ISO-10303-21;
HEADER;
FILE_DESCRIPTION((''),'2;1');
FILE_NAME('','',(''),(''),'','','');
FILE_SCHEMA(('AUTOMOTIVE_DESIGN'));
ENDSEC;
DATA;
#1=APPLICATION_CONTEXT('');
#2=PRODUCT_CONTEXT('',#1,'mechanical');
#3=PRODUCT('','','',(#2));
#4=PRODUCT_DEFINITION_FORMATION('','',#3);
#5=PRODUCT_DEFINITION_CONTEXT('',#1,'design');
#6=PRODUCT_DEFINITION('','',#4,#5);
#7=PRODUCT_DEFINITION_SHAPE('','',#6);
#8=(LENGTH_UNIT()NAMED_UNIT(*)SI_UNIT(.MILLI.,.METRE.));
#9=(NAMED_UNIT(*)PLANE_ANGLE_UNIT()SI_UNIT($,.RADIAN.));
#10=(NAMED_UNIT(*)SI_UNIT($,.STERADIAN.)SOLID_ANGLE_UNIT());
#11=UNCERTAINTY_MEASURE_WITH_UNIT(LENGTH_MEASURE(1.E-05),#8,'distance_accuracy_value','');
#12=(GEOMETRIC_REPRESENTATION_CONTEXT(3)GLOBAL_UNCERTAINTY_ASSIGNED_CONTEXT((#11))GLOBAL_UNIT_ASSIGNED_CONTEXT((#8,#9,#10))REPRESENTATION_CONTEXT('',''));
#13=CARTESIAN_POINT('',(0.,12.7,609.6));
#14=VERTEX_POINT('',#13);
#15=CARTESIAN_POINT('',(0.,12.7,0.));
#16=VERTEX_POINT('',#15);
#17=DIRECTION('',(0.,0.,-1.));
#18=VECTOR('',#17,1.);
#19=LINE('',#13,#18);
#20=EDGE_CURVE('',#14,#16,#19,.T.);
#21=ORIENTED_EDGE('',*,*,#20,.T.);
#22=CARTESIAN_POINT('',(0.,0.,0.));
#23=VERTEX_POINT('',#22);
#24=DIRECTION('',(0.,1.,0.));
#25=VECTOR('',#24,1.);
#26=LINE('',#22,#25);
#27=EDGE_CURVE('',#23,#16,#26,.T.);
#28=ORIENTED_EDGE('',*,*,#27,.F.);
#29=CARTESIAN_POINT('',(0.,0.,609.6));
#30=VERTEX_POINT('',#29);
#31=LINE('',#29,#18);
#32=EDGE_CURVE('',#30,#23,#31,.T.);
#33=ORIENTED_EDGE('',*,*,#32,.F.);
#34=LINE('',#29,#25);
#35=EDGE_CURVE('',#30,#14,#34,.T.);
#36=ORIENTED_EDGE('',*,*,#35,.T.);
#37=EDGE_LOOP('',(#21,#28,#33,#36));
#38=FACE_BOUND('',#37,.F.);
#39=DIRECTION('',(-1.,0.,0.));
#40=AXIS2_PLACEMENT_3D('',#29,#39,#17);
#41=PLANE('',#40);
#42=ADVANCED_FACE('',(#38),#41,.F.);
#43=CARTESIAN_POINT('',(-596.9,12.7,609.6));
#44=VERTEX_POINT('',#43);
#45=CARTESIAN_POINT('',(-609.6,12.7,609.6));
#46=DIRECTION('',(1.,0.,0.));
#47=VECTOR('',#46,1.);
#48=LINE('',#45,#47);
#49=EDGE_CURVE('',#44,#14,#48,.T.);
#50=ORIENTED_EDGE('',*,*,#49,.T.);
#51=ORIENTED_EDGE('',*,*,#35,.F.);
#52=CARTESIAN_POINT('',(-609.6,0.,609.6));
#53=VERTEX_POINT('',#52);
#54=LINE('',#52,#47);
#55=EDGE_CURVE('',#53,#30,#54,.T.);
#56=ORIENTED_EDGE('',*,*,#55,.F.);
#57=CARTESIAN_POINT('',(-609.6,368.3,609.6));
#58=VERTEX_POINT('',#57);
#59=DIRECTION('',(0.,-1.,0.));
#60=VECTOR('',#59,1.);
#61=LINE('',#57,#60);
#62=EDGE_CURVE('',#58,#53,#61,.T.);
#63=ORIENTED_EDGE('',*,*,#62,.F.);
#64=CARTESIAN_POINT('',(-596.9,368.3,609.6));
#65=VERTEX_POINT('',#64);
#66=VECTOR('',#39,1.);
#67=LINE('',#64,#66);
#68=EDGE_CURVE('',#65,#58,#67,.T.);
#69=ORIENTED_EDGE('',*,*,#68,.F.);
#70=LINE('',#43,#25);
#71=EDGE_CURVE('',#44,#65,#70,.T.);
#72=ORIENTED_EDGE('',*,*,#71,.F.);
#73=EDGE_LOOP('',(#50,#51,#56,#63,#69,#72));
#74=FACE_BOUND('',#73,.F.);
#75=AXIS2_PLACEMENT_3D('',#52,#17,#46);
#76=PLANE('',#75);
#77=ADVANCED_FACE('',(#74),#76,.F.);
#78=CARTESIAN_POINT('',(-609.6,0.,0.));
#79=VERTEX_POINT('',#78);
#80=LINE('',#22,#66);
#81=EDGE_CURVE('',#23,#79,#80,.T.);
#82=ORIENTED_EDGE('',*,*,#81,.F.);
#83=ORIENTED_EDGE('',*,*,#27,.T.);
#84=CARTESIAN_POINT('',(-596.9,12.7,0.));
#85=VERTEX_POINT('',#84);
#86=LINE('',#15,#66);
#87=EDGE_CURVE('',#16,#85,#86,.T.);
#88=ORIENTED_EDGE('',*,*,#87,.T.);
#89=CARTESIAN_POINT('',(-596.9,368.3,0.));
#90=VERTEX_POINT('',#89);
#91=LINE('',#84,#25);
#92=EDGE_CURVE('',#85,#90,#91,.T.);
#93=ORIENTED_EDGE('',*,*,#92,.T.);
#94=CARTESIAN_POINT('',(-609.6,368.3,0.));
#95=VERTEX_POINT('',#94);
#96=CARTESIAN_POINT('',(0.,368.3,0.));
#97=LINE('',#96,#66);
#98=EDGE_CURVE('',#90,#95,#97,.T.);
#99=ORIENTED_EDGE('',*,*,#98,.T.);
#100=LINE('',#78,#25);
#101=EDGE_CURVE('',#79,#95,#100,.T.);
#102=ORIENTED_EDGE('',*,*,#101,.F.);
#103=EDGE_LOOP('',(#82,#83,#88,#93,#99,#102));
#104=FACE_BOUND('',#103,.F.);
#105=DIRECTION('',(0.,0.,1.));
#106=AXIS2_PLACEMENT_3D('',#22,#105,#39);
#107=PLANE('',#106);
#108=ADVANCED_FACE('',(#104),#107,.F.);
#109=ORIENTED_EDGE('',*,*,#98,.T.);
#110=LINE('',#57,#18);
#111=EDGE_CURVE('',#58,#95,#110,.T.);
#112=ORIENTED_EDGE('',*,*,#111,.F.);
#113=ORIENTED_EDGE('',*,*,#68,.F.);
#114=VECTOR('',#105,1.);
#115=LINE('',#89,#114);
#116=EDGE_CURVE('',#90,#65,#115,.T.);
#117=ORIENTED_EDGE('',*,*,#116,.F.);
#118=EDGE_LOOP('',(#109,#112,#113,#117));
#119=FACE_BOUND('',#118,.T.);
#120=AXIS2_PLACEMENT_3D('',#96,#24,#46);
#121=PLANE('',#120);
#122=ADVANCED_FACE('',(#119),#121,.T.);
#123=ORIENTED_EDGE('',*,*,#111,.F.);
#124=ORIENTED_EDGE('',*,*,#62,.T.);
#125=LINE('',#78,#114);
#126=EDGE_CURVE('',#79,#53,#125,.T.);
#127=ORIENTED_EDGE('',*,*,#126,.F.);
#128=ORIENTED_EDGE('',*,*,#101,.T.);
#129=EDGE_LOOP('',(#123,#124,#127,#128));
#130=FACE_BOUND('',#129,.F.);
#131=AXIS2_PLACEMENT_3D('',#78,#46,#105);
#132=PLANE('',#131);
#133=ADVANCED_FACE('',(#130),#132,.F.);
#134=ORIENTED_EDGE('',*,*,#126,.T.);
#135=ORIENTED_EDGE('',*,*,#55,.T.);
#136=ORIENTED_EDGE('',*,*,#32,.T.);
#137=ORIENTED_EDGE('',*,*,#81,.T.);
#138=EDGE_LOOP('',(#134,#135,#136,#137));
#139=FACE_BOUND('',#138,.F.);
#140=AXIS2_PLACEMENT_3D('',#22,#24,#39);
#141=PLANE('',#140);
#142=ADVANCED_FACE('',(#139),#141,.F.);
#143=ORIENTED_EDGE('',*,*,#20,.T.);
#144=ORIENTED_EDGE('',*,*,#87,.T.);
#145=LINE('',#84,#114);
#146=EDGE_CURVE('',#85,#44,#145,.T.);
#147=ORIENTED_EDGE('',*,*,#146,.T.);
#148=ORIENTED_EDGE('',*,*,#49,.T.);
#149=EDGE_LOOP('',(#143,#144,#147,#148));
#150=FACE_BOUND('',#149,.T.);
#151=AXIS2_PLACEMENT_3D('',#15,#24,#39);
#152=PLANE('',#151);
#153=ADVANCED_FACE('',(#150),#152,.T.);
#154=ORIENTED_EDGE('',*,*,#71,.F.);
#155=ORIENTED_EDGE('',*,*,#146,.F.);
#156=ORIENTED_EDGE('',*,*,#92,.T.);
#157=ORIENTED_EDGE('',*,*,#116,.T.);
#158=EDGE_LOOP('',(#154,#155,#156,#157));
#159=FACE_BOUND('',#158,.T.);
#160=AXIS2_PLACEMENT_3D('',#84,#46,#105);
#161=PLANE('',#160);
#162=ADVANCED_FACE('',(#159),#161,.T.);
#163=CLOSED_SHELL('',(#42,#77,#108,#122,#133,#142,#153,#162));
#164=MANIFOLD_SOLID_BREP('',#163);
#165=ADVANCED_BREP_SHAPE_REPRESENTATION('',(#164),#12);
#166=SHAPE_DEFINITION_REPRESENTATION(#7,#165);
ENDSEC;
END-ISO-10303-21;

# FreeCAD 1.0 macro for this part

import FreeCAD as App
import Part
import Sketcher
Q = App.Units.Quantity

doc = App.newDocument("Part")
params = doc.addObject("Spreadsheet::Sheet", "Params")
for row, (alias, value) in enumerate([
    ("sketch1_width", "24 in"),
    ("pad1_length", "0.5 in"),
    ("sketch2_height", "24 in"),
    ("sketch2_width", "0.5 in"),
    ("pad2_length", "14 in"),
], start=1):
    params.set(f"A{row}", alias)
    params.set(f"B{row}", "=" + value)
    params.setAlias(f"B{row}", alias)

body = doc.addObject("PartDesign::Body", "Body")

# Sketch on XZ plane
sketch1 = body.newObject("Sketcher::SketchObject", "Sketch")
sketch1.AttachmentSupport = (doc.getObject("XZ_Plane"), [""])
sketch1.MapMode = "FlatFace"
sketch1.addGeometry([
    Part.LineSegment(App.Vector(0, 610, 0), App.Vector(0, 0, 0)),
    Part.LineSegment(App.Vector(0, 0, 0), App.Vector(-610, 0, 0)),
    Part.LineSegment(App.Vector(-610, 0, 0), App.Vector(-610, 610, 0)),
    Part.LineSegment(App.Vector(-610, 610, 0), App.Vector(0, 610, 0)),
], False)
sketch1.addConstraint([
    Sketcher.Constraint("Coincident", 0, 2, 1, 1),
    Sketcher.Constraint("Coincident", 1, 2, 2, 1),
    Sketcher.Constraint("Coincident", 2, 2, 3, 1),
    Sketcher.Constraint("Coincident", 3, 2, 0, 1),
    Sketcher.Constraint("Vertical", 0),
    Sketcher.Constraint("Horizontal", 1),
    Sketcher.Constraint("Vertical", 2),
    Sketcher.Constraint("Horizontal", 3),
    Sketcher.Constraint("Coincident", 0, 2, -1, 1),
    Sketcher.Constraint("Equal", 3, 0),
    Sketcher.Constraint("DistanceX", 1, 2, 1, 1, Q("24 in")),
])
sketch1.setExpression("Constraints[10]", "Params.sketch1_width")
pad1 = body.newObject("PartDesign::Pad", "Pad")
pad1.Profile = sketch1
pad1.setExpression("Length", "Params.pad1_length")
pad1.Reversed = True

# Sketch on XZ plane
sketch2 = body.newObject("Sketcher::SketchObject", "Sketch001")
sketch2.AttachmentSupport = (doc.getObject("XZ_Plane"), [""])
sketch2.MapMode = "FlatFace"
sketch2.AttachmentOffset = App.Placement(App.Vector(0, 0, -0.5 * 25.4), App.Rotation())
sketch2.addGeometry([
    Part.LineSegment(App.Vector(-597, 610, 0), App.Vector(-597, 0, 0)),
    Part.LineSegment(App.Vector(-597, 0, 0), App.Vector(-610, 0, 0)),
    Part.LineSegment(App.Vector(-610, 0, 0), App.Vector(-610, 610, 0)),
    Part.LineSegment(App.Vector(-610, 610, 0), App.Vector(-597, 610, 0)),
], False)
sketch2.addConstraint([
    Sketcher.Constraint("Coincident", 0, 2, 1, 1),
    Sketcher.Constraint("Coincident", 1, 2, 2, 1),
    Sketcher.Constraint("Coincident", 2, 2, 3, 1),
    Sketcher.Constraint("Coincident", 3, 2, 0, 1),
    Sketcher.Constraint("Vertical", 0),
    Sketcher.Constraint("Horizontal", 1),
    Sketcher.Constraint("Vertical", 2),
    Sketcher.Constraint("Horizontal", 3),
    Sketcher.Constraint("PointOnObject", 0, 2, -1),
    Sketcher.Constraint("DistanceY", 0, 2, 0, 1, Q("24 in")),
    Sketcher.Constraint("DistanceX", 1, 2, 1, 1, Q("0.5 in")),
    Sketcher.Constraint("DistanceX", 1, 2, -1, 1, Q("24 in")),
])
sketch2.setExpression("Constraints[9]", "Params.sketch2_height")
sketch2.setExpression("Constraints[10]", "Params.sketch2_width")
pad2 = body.newObject("PartDesign::Pad", "Pad001")
pad2.Profile = sketch2
pad2.setExpression("Length", "Params.pad2_length")
pad2.Reversed = True

doc.recompute()
